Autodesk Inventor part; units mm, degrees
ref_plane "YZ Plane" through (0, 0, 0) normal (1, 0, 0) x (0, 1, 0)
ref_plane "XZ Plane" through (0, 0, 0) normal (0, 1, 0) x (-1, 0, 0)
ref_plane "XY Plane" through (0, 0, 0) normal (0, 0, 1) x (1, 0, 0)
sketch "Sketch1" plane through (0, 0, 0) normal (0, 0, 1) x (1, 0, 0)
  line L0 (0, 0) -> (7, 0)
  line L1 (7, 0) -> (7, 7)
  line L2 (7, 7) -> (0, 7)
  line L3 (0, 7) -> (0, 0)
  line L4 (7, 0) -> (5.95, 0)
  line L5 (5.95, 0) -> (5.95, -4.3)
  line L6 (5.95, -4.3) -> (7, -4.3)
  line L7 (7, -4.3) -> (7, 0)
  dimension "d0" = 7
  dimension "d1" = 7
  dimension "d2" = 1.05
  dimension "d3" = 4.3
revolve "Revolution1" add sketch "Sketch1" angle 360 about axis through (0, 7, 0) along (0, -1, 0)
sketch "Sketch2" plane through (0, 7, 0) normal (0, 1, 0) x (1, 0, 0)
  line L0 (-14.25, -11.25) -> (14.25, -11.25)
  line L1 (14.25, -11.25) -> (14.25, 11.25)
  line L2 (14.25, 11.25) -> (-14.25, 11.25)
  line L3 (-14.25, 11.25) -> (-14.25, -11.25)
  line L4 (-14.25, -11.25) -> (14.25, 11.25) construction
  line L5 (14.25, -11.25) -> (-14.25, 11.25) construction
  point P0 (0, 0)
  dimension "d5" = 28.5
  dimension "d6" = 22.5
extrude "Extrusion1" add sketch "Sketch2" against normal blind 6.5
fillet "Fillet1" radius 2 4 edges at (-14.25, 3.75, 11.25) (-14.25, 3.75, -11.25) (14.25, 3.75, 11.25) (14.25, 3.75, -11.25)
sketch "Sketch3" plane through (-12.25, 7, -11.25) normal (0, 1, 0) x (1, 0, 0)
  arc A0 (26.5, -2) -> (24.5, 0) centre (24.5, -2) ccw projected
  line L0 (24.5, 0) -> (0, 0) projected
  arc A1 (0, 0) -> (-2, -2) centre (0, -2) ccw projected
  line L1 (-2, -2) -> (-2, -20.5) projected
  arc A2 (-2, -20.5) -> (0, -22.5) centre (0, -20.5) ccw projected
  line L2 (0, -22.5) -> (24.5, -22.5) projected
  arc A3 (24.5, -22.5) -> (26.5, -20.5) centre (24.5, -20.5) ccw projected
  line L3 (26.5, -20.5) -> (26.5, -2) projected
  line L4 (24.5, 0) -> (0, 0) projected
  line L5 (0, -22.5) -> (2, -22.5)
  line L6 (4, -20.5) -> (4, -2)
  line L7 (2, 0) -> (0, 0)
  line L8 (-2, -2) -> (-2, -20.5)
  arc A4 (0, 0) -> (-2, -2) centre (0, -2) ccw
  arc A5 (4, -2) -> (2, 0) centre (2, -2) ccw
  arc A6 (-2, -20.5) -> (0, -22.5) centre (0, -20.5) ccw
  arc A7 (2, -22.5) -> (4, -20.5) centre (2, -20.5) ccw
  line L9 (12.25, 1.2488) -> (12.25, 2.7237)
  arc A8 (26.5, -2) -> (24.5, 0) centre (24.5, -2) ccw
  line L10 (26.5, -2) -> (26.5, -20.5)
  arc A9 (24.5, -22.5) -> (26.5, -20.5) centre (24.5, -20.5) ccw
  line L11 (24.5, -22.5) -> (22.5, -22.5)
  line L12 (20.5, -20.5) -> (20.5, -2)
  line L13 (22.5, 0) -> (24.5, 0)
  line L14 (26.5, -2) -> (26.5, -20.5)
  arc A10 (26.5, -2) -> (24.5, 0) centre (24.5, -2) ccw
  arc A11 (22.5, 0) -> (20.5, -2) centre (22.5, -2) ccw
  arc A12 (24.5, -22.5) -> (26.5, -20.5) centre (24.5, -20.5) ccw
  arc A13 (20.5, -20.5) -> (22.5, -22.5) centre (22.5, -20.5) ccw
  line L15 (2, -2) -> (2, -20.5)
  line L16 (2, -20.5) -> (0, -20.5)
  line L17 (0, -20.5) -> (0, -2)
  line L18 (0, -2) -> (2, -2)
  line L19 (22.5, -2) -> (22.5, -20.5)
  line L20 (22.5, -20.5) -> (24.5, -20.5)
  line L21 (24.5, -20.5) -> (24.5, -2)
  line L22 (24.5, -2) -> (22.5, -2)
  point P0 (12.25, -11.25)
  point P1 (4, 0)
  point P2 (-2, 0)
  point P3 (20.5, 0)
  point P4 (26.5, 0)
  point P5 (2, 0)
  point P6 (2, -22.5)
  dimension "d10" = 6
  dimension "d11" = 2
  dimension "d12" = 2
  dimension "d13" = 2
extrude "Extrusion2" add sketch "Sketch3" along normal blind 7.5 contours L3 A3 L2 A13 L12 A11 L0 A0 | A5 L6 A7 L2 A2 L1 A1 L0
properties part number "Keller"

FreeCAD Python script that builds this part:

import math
import FreeCAD as App
import Part
import Sketcher

V = App.Vector


def edges_at(feature, points):
    """Names of the edges that pass closest to the given points."""
    edges = feature.Shape.Edges
    near = lambda p: min(range(len(edges)), key=lambda i: edges[i].distToShape(Part.Vertex(*p))[0])
    return sorted({f"Edge{near(p) + 1}" for p in points})


def add_polygon(sketch, points):
    """Adds a closed chain of lines whose ends are joined by coincident constraints."""
    first, n = sketch.GeometryCount, len(points)
    for a, b in zip(points, points[1:] + points[:1]):
        sketch.addGeometry(Part.LineSegment(App.Vector(*a, 0), App.Vector(*b, 0)), False)
    for i in range(n):
        sketch.addConstraint(Sketcher.Constraint("Coincident", first + i, 2, first + (i + 1) % n, 1))

doc = App.newDocument("Part")
params = doc.addObject("Spreadsheet::Sheet", "Params")
for row, (alias, value) in enumerate([
    ("sketch1_width", "7 mm"),
    ("sketch1_height", "4.3 mm"),
    ("sketch1_width2", "1.05 mm"),
    ("revolution_angle", "360 deg"),
    ("sketch2_width", "28.5 mm"),
    ("sketch2_height", "22.5 mm"),
    ("pad1_length", "6.5 mm"),
    ("fillet_radius", "2 mm"),
    ("sketch3_radius", "2 mm"),
    ("sketch3_width", "2 mm"),
    ("sketch3_height", "18.5 mm"),
    ("pad2_length", "7.5 mm"),
], start=1):
    params.set(f"A{row}", alias)
    params.set(f"B{row}", "=" + value)
    params.setAlias(f"B{row}", alias)

body = doc.addObject("PartDesign::Body", "Body")

# Sketch on XY plane
sketch1 = body.newObject("Sketcher::SketchObject", "Sketch")
sketch1.AttachmentSupport = (doc.getObject("XY_Plane"), [""])
sketch1.MapMode = "FlatFace"
add_polygon(sketch1, [(0, 7), (0, 0), (6, 0), (6, -4.3), (7, -4.3), (7, 7)])  # lines 0-5
sketch1.addConstraint([
    Sketcher.Constraint("Vertical", 0),
    Sketcher.Constraint("Horizontal", 1),
    Sketcher.Constraint("Vertical", 2),
    Sketcher.Constraint("Horizontal", 3),
    Sketcher.Constraint("Vertical", 4),
    Sketcher.Constraint("Horizontal", 5),
    Sketcher.Constraint("Coincident", 0, 2, -1, 1),
    Sketcher.Constraint("Equal", 5, 0),
    Sketcher.Constraint("DistanceX", 5, 2, 5, 1, 7.0),
    Sketcher.Constraint("DistanceY", 2, 2, 2, 1, 4.3),
    Sketcher.Constraint("DistanceX", 3, 1, 3, 2, 1.05),
])
sketch1.setExpression("Constraints[14]", "Params.sketch1_width")
sketch1.setExpression("Constraints[15]", "Params.sketch1_height")
sketch1.setExpression("Constraints[16]", "Params.sketch1_width2")
revolution = body.newObject("PartDesign::Revolution", "Revolution")
revolution.Profile = sketch1
revolution.ReferenceAxis = (sketch1, ["V_Axis"])
revolution.setExpression("Angle", "Params.revolution_angle")

# Sketch on XZ plane
sketch2 = body.newObject("Sketcher::SketchObject", "Sketch001")
sketch2.AttachmentSupport = (doc.getObject("XZ_Plane"), [""])
sketch2.MapMode = "FlatFace"
sketch2.AttachmentOffset = App.Placement(V(0, 0, -7), App.Rotation())
add_polygon(sketch2, [(-14, -11), (-14, 11), (14, 11), (14, -11)])  # lines 0-3
sketch2.addConstraint([
    Sketcher.Constraint("Vertical", 0),
    Sketcher.Constraint("Horizontal", 1),
    Sketcher.Constraint("Vertical", 2),
    Sketcher.Constraint("Horizontal", 3),
    Sketcher.Constraint("Symmetric", 0, 2, 2, 2, -1, 1),
    Sketcher.Constraint("DistanceX", 1, 1, 1, 2, 28.5),
    Sketcher.Constraint("DistanceY", 0, 1, 0, 2, 22.5),
])
sketch2.setExpression("Constraints[9]", "Params.sketch2_width")
sketch2.setExpression("Constraints[10]", "Params.sketch2_height")
pad1 = body.newObject("PartDesign::Pad", "Pad")
pad1.Profile = sketch2
pad1.setExpression("Length", "Params.pad1_length")
doc.recompute()

fillet = body.newObject("PartDesign::Fillet", "Fillet")
fillet.Base = (pad1, edges_at(pad1, [
    (-14.25, 3.75, 11.25),
    (-14.25, 3.75, -11.25),
    (14.25, 3.75, 11.25),
    (14.25, 3.75, -11.25),
]))
fillet.setExpression("Radius", "Params.fillet_radius")

# Sketch on XZ plane
sketch3 = body.newObject("Sketcher::SketchObject", "Sketch002")
sketch3.AttachmentSupport = (doc.getObject("XZ_Plane"), [""])
sketch3.MapMode = "FlatFace"
sketch3.AttachmentOffset = App.Placement(V(0, 0, -7), App.Rotation())
sketch3.addGeometry(Part.LineSegment(V(14.2, 9.2, 0), V(14.2, -9.2, 0)), False)  # 0
sketch3.addGeometry(Part.ArcOfCircle(Part.Circle(V(12.2, -9.2, 0), V(0, 0, 1), 2), math.radians(-90), math.radians(0)), False)  # 1
sketch3.addGeometry(Part.LineSegment(V(12.2, -11.2, 0), V(10.2, -11.2, 0)), False)  # 2
sketch3.addGeometry(Part.ArcOfCircle(Part.Circle(V(10.2, -9.2, 0), V(0, 0, 1), 2), math.radians(180), math.radians(270)), False)  # 3
sketch3.addGeometry(Part.LineSegment(V(8.2, -9.2, 0), V(8.2, 9.2, 0)), False)  # 4
sketch3.addGeometry(Part.ArcOfCircle(Part.Circle(V(10.2, 9.2, 0), V(0, 0, 1), 2), math.radians(90), math.radians(180)), False)  # 5
sketch3.addGeometry(Part.LineSegment(V(10.2, 11.2, 0), V(12.2, 11.2, 0)), False)  # 6
sketch3.addGeometry(Part.ArcOfCircle(Part.Circle(V(12.2, 9.2, 0), V(0, 0, 1), 2), math.radians(0), math.radians(90)), False)  # 7
add_polygon(sketch3, [(10.2, 9.2), (10.2, -9.2), (12.2, -9.2), (12.2, 9.2)])  # lines 8-11
sketch3.addGeometry(Part.ArcOfCircle(Part.Circle(V(-10.2, -9.2, 0), V(0, 0, 1), 2), math.radians(-90), math.radians(0)), False)  # 12
sketch3.addGeometry(Part.LineSegment(V(-10.2, -11.2, 0), V(-12.2, -11.2, 0)), False)  # 13
sketch3.addGeometry(Part.ArcOfCircle(Part.Circle(V(-12.2, -9.2, 0), V(0, 0, 1), 2), math.radians(180), math.radians(270)), False)  # 14
sketch3.addGeometry(Part.LineSegment(V(-14.2, -9.2, 0), V(-14.2, 9.2, 0)), False)  # 15
sketch3.addGeometry(Part.ArcOfCircle(Part.Circle(V(-12.2, 9.2, 0), V(0, 0, 1), 2), math.radians(90), math.radians(180)), False)  # 16
sketch3.addGeometry(Part.LineSegment(V(-12.2, 11.2, 0), V(-10.2, 11.2, 0)), False)  # 17
sketch3.addGeometry(Part.ArcOfCircle(Part.Circle(V(-10.2, 9.2, 0), V(0, 0, 1), 2), math.radians(0), math.radians(90)), False)  # 18
sketch3.addGeometry(Part.LineSegment(V(-8.2, 9.2, 0), V(-8.2, -9.2, 0)), False)  # 19
add_polygon(sketch3, [(-12.2, -9.2), (-10.2, -9.2), (-10.2, 9.2), (-12.2, 9.2)])  # lines 20-23
sketch3.addConstraint([
    Sketcher.Constraint("Tangent", 0, 2, 1, 2),
    Sketcher.Constraint("Tangent", 1, 1, 2, 1),
    Sketcher.Constraint("Tangent", 2, 2, 3, 2),
    Sketcher.Constraint("Tangent", 3, 1, 4, 1),
    Sketcher.Constraint("Tangent", 4, 2, 5, 2),
    Sketcher.Constraint("Tangent", 5, 1, 6, 1),
    Sketcher.Constraint("Tangent", 6, 2, 7, 2),
    Sketcher.Constraint("Tangent", 7, 1, 0, 1),
    Sketcher.Constraint("Tangent", 12, 1, 13, 1),
    Sketcher.Constraint("Tangent", 13, 2, 14, 2),
    Sketcher.Constraint("Tangent", 14, 1, 15, 1),
    Sketcher.Constraint("Tangent", 15, 2, 16, 2),
    Sketcher.Constraint("Tangent", 16, 1, 17, 1),
    Sketcher.Constraint("Tangent", 17, 2, 18, 2),
    Sketcher.Constraint("Tangent", 18, 1, 19, 1),
    Sketcher.Constraint("Tangent", 19, 2, 12, 2),
    Sketcher.Constraint("Vertical", 0),
    Sketcher.Constraint("Horizontal", 2),
    Sketcher.Constraint("Vertical", 4),
    Sketcher.Constraint("Horizontal", 6),
    Sketcher.Constraint("Vertical", 8),
    Sketcher.Constraint("Horizontal", 9),
    Sketcher.Constraint("Vertical", 10),
    Sketcher.Constraint("Horizontal", 11),
    Sketcher.Constraint("Horizontal", 13),
    Sketcher.Constraint("Vertical", 15),
    Sketcher.Constraint("Horizontal", 17),
    Sketcher.Constraint("Vertical", 19),
    Sketcher.Constraint("Horizontal", 20),
    Sketcher.Constraint("Vertical", 21),
    Sketcher.Constraint("Horizontal", 22),
    Sketcher.Constraint("Vertical", 23),
    Sketcher.Constraint("Coincident", 8, 2, 3, 3),
    Sketcher.Constraint("Coincident", 9, 2, 1, 3),
    Sketcher.Constraint("Coincident", 10, 2, 7, 3),
    Sketcher.Constraint("Coincident", 20, 2, 12, 3),
    Sketcher.Constraint("Coincident", 21, 2, 18, 3),
    Sketcher.Constraint("Coincident", 22, 2, 16, 3),
    Sketcher.Constraint("Equal", 3, 5),
    Sketcher.Constraint("Equal", 7, 12),
    Sketcher.Constraint("Equal", 12, 14),
    Sketcher.Constraint("Symmetric", 5, 3, 12, 3, -1, 1),
    Sketcher.Constraint("Symmetric", 1, 3, 16, 3, -1, 1),
    Sketcher.Constraint("Horizontal", 3, 3, 12, 3),
    Sketcher.Constraint("Radius", 1, 2.0),
    Sketcher.Constraint("DistanceX", 2, 2, 2, 1, 2.0),
    Sketcher.Constraint("DistanceY", 0, 2, 0, 1, 18.5),
    Sketcher.Constraint("DistanceX", 12, 3, 3, 3, 20.5),
])
sketch3.setExpression("Constraints[52]", "Params.sketch3_radius")
sketch3.setExpression("Constraints[53]", "Params.sketch3_width")
sketch3.setExpression("Constraints[54]", "Params.sketch3_height")
pad2 = body.newObject("PartDesign::Pad", "Pad001")
pad2.Profile = sketch3
pad2.setExpression("Length", "Params.pad2_length")
pad2.Reversed = True

doc.recompute()
